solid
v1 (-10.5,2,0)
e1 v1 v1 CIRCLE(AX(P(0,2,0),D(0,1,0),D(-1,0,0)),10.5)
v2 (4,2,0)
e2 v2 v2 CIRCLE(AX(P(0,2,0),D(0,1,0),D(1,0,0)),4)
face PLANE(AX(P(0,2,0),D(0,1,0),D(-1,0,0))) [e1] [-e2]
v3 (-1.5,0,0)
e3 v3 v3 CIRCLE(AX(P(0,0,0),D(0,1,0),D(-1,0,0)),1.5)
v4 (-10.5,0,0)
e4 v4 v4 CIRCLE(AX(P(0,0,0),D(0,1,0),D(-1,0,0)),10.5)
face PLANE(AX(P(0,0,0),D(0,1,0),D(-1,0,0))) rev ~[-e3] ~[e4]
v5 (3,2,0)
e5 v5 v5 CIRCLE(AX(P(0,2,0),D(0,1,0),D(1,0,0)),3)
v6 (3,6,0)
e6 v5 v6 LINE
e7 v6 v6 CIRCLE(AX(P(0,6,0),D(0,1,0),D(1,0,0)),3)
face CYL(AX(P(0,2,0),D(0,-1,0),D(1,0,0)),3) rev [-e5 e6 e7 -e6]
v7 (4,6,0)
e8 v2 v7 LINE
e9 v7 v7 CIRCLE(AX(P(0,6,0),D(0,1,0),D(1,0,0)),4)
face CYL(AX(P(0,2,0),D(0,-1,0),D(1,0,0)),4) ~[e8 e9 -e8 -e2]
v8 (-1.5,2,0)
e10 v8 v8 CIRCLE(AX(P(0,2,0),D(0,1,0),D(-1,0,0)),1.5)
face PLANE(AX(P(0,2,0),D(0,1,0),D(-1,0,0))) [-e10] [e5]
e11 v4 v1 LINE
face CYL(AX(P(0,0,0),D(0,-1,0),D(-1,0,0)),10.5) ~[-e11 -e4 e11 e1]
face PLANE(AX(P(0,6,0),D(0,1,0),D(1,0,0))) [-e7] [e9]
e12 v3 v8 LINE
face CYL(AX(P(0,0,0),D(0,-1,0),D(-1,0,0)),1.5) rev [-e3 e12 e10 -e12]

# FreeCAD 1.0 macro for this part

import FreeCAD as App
import Part
import Sketcher
from FreeCAD import Vector
Q = App.Units.Quantity

doc = App.newDocument("Part")
body = doc.addObject("PartDesign::Body", "Body")

sketch1 = body.newObject("Sketcher::SketchObject", "Sketch")
sketch1.AttachmentSupport = (doc.getObject("XZ_Plane"), [""])
sketch1.MapMode = "FlatFace"
sketch1.addGeometry(Part.Circle(Vector(0, 0, 0), Vector(0, 0, 1), 10.5), False)
sketch1.addGeometry(Part.Circle(Vector(0, 0, 0), Vector(0, 0, 1), 1.5), False)
sketch1.addConstraint(Sketcher.Constraint("Coincident", 0, 3, -1, 1))
sketch1.addConstraint(Sketcher.Constraint("Coincident", 1, 3, -1, 1))
sketch1.addConstraint(Sketcher.Constraint("Diameter", 0, Q("21 mm")))
sketch1.addConstraint(Sketcher.Constraint("Diameter", 1, Q("3 mm")))
pad1 = body.newObject("PartDesign::Pad", "Pad")
pad1.Profile = sketch1
pad1.Length = 2
pad1.Reversed = True

sketch2 = body.newObject("Sketcher::SketchObject", "Sketch001")
sketch2.AttachmentSupport = (doc.getObject("XZ_Plane"), [""])
sketch2.MapMode = "FlatFace"
sketch2.AttachmentOffset = App.Placement(Vector(0, 0, -2), App.Rotation())
sketch2.addGeometry(Part.Circle(Vector(0, 0, 0), Vector(0, 0, 1), 4), False)
sketch2.addGeometry(Part.Circle(Vector(0, 0, 0), Vector(0, 0, 1), 3), False)
sketch2.addConstraint(Sketcher.Constraint("Coincident", 0, 3, -1, 1))
sketch2.addConstraint(Sketcher.Constraint("Coincident", 1, 3, -1, 1))
sketch2.addConstraint(Sketcher.Constraint("Diameter", 0, Q("8 mm")))
sketch2.addConstraint(Sketcher.Constraint("Diameter", 1, Q("6 mm")))
pad2 = body.newObject("PartDesign::Pad", "Pad001")
pad2.Profile = sketch2
pad2.Length = 4
pad2.Reversed = True

doc.recompute()
